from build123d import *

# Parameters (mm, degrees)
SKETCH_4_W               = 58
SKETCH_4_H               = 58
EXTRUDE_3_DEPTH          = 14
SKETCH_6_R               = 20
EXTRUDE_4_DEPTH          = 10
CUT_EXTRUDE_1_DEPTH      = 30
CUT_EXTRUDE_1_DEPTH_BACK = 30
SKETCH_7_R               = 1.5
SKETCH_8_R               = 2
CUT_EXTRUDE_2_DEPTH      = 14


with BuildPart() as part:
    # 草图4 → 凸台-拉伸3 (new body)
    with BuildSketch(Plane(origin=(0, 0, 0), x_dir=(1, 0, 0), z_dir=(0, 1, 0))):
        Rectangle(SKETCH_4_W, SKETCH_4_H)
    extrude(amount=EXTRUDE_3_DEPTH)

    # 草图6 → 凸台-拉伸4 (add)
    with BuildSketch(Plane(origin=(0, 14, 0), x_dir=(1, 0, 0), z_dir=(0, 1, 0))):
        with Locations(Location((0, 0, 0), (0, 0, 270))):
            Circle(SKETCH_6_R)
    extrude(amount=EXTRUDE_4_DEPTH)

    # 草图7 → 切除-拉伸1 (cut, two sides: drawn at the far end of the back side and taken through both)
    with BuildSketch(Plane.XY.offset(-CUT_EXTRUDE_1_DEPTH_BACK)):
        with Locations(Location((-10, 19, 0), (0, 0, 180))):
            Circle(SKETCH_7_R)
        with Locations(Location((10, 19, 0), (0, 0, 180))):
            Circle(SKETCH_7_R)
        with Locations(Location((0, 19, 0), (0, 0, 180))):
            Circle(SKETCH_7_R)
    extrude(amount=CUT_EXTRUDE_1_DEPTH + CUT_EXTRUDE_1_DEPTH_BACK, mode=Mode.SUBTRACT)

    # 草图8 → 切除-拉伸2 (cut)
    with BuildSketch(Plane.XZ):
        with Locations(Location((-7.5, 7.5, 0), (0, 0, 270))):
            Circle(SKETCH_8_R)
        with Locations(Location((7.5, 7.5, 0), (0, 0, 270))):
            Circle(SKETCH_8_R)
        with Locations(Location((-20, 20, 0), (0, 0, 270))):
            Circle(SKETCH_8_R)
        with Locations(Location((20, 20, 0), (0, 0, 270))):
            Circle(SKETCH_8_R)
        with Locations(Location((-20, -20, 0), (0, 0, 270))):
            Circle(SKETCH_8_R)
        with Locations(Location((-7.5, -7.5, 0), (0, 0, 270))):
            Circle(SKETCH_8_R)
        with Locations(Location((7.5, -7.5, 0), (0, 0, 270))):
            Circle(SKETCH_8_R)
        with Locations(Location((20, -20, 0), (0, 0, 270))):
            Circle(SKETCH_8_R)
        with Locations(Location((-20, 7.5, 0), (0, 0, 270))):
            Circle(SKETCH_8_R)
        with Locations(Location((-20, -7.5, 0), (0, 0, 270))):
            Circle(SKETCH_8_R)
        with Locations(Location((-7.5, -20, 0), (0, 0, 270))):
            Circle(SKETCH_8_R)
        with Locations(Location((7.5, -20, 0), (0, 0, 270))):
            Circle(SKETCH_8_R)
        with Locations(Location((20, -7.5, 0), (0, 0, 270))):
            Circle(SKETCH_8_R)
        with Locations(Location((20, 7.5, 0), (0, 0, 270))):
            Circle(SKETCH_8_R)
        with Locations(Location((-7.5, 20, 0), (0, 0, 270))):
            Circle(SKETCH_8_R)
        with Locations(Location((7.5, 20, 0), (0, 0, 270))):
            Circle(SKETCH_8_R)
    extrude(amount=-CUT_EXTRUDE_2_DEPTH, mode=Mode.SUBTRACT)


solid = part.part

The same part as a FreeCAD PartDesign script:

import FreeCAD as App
import Part
import Sketcher
from FreeCAD import Vector

doc = App.newDocument("Part")
params = doc.addObject("Spreadsheet::Sheet", "Params")
for row, (alias, value) in enumerate([
    ("sketch1_width", "58 mm"),
    ("pad1_length", "14 mm"),
    ("sketch2_diameter", "40 mm"),
    ("pad2_length", "10 mm"),
    ("sketch3_diameter", "3 mm"),
    ("sketch4_diameter", "4 mm"),
    ("pocket2_length", "14 mm"),
], start=1):
    params.set(f"A{row}", alias)
    params.set(f"B{row}", "=" + value)
    params.setAlias(f"B{row}", alias)

body = doc.addObject("PartDesign::Body", "Body")

# Sketch on XZ plane
sketch1 = body.newObject("Sketcher::SketchObject", "Sketch")
sketch1.AttachmentSupport = (doc.getObject("XZ_Plane"), [""])
sketch1.MapMode = "FlatFace"
sketch1.addGeometry([
    Part.LineSegment(Vector(-29, -29, 0), Vector(-29, 29, 0)),
    Part.LineSegment(Vector(-29, 29, 0), Vector(29, 29, 0)),
    Part.LineSegment(Vector(29, 29, 0), Vector(29, -29, 0)),
    Part.LineSegment(Vector(29, -29, 0), Vector(-29, -29, 0)),
], False)
sketch1.addConstraint([
    Sketcher.Constraint("Coincident", 0, 2, 1, 1),
    Sketcher.Constraint("Coincident", 1, 2, 2, 1),
    Sketcher.Constraint("Coincident", 2, 2, 3, 1),
    Sketcher.Constraint("Coincident", 3, 2, 0, 1),
    Sketcher.Constraint("Vertical", 0),
    Sketcher.Constraint("Horizontal", 1),
    Sketcher.Constraint("Vertical", 2),
    Sketcher.Constraint("Horizontal", 3),
    Sketcher.Constraint("Symmetric", 0, 2, 2, 2, -1, 1),
    Sketcher.Constraint("Equal", 3, 0),
    Sketcher.Constraint("DistanceX", 1, 1, 1, 2, 58.0),
])
sketch1.setExpression("Constraints[10]", "Params.sketch1_width")
pad1 = body.newObject("PartDesign::Pad", "Pad")
pad1.Profile = sketch1
pad1.setExpression("Length", "Params.pad1_length")
pad1.Reversed = True

# Sketch on XZ plane
sketch2 = body.newObject("Sketcher::SketchObject", "Sketch001")
sketch2.AttachmentSupport = (doc.getObject("XZ_Plane"), [""])
sketch2.MapMode = "FlatFace"
sketch2.AttachmentOffset = App.Placement(Vector(0, 0, -14), App.Rotation())
sketch2.addGeometry(Part.Circle(Vector(0, 0, 0), Vector(0, 0, 1), 20), False)
sketch2.addConstraint([
    Sketcher.Constraint("Coincident", 0, 3, -1, 1),
    Sketcher.Constraint("Diameter", 0, 40.0),
])
sketch2.setExpression("Constraints[1]", "Params.sketch2_diameter")
pad2 = body.newObject("PartDesign::Pad", "Pad001")
pad2.Profile = sketch2
pad2.setExpression("Length", "Params.pad2_length")
pad2.Reversed = True

# Sketch on XY plane
sketch3 = body.newObject("Sketcher::SketchObject", "Sketch002")
sketch3.AttachmentSupport = (doc.getObject("XY_Plane"), [""])
sketch3.MapMode = "FlatFace"
sketch3.addGeometry([
    Part.Circle(Vector(-10, 19, 0), Vector(0, 0, 1), 1.5),
    Part.Circle(Vector(10, 19, 0), Vector(0, 0, 1), 1.5),
    Part.Circle(Vector(0, 19, 0), Vector(0, 0, 1), 1.5),
], False)
sketch3.addConstraint([
    Sketcher.Constraint("Equal", 0, 1),
    Sketcher.Constraint("Equal", 1, 2),
    Sketcher.Constraint("Symmetric", 0, 3, 1, 3, -2),
    Sketcher.Constraint("PointOnObject", 2, 3, -2),
    Sketcher.Constraint("Horizontal", 1, 3, 2, 3),
    Sketcher.Constraint("Diameter", 0, 3.0),
    Sketcher.Constraint("DistanceX", 0, 3, -1, 1, 10.0),
    Sketcher.Constraint("DistanceY", -1, 1, 0, 3, 19.0),
])
sketch3.setExpression("Constraints[5]", "Params.sketch3_diameter")
pocket1 = body.newObject("PartDesign::Pocket", "Pocket")
pocket1.Profile = sketch3
pocket1.Type = "ThroughAll"
pocket1.Midplane = True

# Sketch on XZ plane
sketch4 = body.newObject("Sketcher::SketchObject", "Sketch003")
sketch4.AttachmentSupport = (doc.getObject("XZ_Plane"), [""])
sketch4.MapMode = "FlatFace"
sketch4.addGeometry([
    Part.Circle(Vector(-7.5, 7.5, 0), Vector(0, 0, 1), 2),  # 0
    Part.Circle(Vector(7.5, 7.5, 0), Vector(0, 0, 1), 2),  # 1
    Part.Circle(Vector(-20, 20, 0), Vector(0, 0, 1), 2),  # 2
    Part.Circle(Vector(20, 20, 0), Vector(0, 0, 1), 2),  # 3
    Part.Circle(Vector(-20, -20, 0), Vector(0, 0, 1), 2),  # 4
    Part.Circle(Vector(-7.5, -7.5, 0), Vector(0, 0, 1), 2),  # 5
    Part.Circle(Vector(7.5, -7.5, 0), Vector(0, 0, 1), 2),  # 6
    Part.Circle(Vector(20, -20, 0), Vector(0, 0, 1), 2),  # 7
    Part.Circle(Vector(-20, 7.5, 0), Vector(0, 0, 1), 2),  # 8
    Part.Circle(Vector(-20, -7.5, 0), Vector(0, 0, 1), 2),  # 9
    Part.Circle(Vector(-7.5, -20, 0), Vector(0, 0, 1), 2),  # 10
    Part.Circle(Vector(7.5, -20, 0), Vector(0, 0, 1), 2),  # 11
    Part.Circle(Vector(20, -7.5, 0), Vector(0, 0, 1), 2),  # 12
    Part.Circle(Vector(20, 7.5, 0), Vector(0, 0, 1), 2),  # 13
    Part.Circle(Vector(-7.5, 20, 0), Vector(0, 0, 1), 2),  # 14
    Part.Circle(Vector(7.5, 20, 0), Vector(0, 0, 1), 2),  # 15
], False)
sketch4.addConstraint([
    Sketcher.Constraint("Equal", 0, 1),
    Sketcher.Constraint("Equal", 1, 2),
    Sketcher.Constraint("Equal", 2, 3),
    Sketcher.Constraint("Equal", 3, 4),
    Sketcher.Constraint("Equal", 4, 5),
    Sketcher.Constraint("Equal", 5, 6),
    Sketcher.Constraint("Equal", 6, 7),
    Sketcher.Constraint("Equal", 7, 8),
    Sketcher.Constraint("Equal", 8, 9),
    Sketcher.Constraint("Equal", 9, 10),
    Sketcher.Constraint("Equal", 10, 11),
    Sketcher.Constraint("Equal", 11, 12),
    Sketcher.Constraint("Equal", 12, 13),
    Sketcher.Constraint("Equal", 13, 14),
    Sketcher.Constraint("Equal", 14, 15),
    Sketcher.Constraint("Symmetric", 3, 3, 4, 3, -1, 1),
    Sketcher.Constraint("Symmetric", 1, 3, 5, 3, -1, 1),
    Sketcher.Constraint("Symmetric", 0, 3, 6, 3, -1, 1),
    Sketcher.Constraint("Symmetric", 2, 3, 7, 3, -1, 1),
    Sketcher.Constraint("Symmetric", 8, 3, 12, 3, -1, 1),
    Sketcher.Constraint("Symmetric", 9, 3, 13, 3, -1, 1),
    Sketcher.Constraint("Symmetric", 11, 3, 14, 3, -1, 1),
    Sketcher.Constraint("Symmetric", 10, 3, 15, 3, -1, 1),
    Sketcher.Constraint("Symmetric", 0, 3, 1, 3, -2),
    Sketcher.Constraint("Symmetric", 2, 3, 3, 3, -2),
    Sketcher.Constraint("Symmetric", 10, 3, 11, 3, -2),
    Sketcher.Constraint("Symmetric", 9, 3, 12, 3, -2),
    Sketcher.Constraint("Horizontal", 1, 3, 8, 3),
    Sketcher.Constraint("Horizontal", 7, 3, 10, 3),
    Sketcher.Constraint("Vertical", 4, 3, 8, 3),
    Sketcher.Constraint("Vertical", 5, 3, 10, 3),
    Sketcher.Constraint("Diameter", 0, 4.0),
    Sketcher.Constraint("DistanceX", 2, 3, -1, 1, 20.0),
    Sketcher.Constraint("DistanceY", -1, 1, 2, 3, 20.0),
    Sketcher.Constraint("DistanceX", 0, 3, 1, 3, 15.0),
    Sketcher.Constraint("DistanceY", 5, 3, 0, 3, 15.0),
])
sketch4.setExpression("Constraints[31]", "Params.sketch4_diameter")
pocket2 = body.newObject("PartDesign::Pocket", "Pocket001")
pocket2.Profile = sketch4
pocket2.setExpression("Length", "Params.pocket2_length")

doc.recompute()
